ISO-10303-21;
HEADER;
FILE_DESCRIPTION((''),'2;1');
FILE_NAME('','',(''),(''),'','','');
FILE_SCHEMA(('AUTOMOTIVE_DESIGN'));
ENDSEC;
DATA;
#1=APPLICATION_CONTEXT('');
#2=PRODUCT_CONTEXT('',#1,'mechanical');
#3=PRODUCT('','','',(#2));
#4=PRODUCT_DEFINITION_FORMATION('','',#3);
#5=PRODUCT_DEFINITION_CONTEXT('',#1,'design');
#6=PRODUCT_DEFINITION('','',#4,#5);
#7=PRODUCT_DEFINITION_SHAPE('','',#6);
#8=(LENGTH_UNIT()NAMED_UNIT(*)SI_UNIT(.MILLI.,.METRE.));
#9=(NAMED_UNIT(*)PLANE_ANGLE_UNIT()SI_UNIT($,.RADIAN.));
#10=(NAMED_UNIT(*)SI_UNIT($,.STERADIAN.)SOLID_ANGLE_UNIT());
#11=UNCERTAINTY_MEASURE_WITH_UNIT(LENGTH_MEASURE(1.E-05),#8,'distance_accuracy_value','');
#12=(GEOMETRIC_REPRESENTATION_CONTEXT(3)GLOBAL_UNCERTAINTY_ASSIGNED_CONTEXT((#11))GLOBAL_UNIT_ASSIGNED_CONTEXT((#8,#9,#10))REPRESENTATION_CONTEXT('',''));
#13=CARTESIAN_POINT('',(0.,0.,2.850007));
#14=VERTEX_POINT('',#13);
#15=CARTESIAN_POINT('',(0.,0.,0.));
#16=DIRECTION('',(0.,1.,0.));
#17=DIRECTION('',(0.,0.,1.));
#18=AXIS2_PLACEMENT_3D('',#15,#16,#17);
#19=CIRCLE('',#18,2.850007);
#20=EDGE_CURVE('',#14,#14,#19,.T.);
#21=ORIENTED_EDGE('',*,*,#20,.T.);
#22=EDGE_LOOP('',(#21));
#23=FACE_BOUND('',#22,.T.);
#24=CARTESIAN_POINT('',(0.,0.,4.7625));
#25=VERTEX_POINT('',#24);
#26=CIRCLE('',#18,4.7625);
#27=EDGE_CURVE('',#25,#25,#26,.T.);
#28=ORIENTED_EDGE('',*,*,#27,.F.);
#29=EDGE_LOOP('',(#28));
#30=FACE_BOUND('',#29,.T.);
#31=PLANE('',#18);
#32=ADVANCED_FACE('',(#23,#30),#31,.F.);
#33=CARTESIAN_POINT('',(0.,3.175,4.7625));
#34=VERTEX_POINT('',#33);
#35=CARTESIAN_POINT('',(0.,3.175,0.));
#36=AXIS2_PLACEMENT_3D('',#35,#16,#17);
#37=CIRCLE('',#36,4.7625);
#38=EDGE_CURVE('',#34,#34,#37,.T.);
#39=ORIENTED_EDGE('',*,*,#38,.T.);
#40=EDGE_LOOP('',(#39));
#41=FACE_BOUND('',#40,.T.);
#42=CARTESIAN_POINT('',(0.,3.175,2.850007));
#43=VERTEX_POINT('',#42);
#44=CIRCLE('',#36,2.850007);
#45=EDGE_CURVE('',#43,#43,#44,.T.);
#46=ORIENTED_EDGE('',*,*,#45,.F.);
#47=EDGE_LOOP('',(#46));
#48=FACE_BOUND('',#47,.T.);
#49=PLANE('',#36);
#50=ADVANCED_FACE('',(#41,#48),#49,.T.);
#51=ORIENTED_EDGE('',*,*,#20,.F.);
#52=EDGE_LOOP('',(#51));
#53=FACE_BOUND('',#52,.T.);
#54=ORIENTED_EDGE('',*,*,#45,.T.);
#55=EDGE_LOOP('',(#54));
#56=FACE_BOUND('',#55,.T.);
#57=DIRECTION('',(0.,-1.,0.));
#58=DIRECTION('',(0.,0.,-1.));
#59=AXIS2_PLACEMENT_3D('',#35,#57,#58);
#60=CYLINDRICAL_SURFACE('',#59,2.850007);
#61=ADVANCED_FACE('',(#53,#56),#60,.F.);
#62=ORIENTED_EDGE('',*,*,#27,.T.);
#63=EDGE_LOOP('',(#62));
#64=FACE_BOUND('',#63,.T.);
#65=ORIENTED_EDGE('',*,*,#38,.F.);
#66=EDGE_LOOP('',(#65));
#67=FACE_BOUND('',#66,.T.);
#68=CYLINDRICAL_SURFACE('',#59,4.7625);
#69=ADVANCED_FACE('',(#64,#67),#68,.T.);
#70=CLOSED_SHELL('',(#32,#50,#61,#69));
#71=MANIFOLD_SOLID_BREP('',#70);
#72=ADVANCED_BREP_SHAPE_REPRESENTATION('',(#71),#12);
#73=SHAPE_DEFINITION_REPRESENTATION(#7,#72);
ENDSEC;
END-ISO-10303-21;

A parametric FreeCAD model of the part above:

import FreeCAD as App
import Part
import Sketcher
from FreeCAD import Vector
Q = App.Units.Quantity

doc = App.newDocument("Part")
body = doc.addObject("PartDesign::Body", "Body")

sketch1 = body.newObject("Sketcher::SketchObject", "Sketch")
sketch1.AttachmentSupport = (doc.getObject("XZ_Plane"), [""])
sketch1.MapMode = "FlatFace"
sketch1.addGeometry(Part.Circle(Vector(0, 0, 0), Vector(0, 0, 1), 4.8), False)
sketch1.addGeometry(Part.Circle(Vector(0, 0, 0), Vector(0, 0, 1), 2.9), False)
sketch1.addConstraint(Sketcher.Constraint("Coincident", 0, 3, -1, 1))
sketch1.addConstraint(Sketcher.Constraint("Coincident", 1, 3, -1, 1))
sketch1.addConstraint(Sketcher.Constraint("Diameter", 0, Q("0.375 in")))
sketch1.addConstraint(Sketcher.Constraint("Diameter", 1, Q("5.700014 mm")))
pad1 = body.newObject("PartDesign::Pad", "Pad")
pad1.Profile = sketch1
pad1.Length = Q("0.125 in")
pad1.Reversed = True

doc.recompute()
